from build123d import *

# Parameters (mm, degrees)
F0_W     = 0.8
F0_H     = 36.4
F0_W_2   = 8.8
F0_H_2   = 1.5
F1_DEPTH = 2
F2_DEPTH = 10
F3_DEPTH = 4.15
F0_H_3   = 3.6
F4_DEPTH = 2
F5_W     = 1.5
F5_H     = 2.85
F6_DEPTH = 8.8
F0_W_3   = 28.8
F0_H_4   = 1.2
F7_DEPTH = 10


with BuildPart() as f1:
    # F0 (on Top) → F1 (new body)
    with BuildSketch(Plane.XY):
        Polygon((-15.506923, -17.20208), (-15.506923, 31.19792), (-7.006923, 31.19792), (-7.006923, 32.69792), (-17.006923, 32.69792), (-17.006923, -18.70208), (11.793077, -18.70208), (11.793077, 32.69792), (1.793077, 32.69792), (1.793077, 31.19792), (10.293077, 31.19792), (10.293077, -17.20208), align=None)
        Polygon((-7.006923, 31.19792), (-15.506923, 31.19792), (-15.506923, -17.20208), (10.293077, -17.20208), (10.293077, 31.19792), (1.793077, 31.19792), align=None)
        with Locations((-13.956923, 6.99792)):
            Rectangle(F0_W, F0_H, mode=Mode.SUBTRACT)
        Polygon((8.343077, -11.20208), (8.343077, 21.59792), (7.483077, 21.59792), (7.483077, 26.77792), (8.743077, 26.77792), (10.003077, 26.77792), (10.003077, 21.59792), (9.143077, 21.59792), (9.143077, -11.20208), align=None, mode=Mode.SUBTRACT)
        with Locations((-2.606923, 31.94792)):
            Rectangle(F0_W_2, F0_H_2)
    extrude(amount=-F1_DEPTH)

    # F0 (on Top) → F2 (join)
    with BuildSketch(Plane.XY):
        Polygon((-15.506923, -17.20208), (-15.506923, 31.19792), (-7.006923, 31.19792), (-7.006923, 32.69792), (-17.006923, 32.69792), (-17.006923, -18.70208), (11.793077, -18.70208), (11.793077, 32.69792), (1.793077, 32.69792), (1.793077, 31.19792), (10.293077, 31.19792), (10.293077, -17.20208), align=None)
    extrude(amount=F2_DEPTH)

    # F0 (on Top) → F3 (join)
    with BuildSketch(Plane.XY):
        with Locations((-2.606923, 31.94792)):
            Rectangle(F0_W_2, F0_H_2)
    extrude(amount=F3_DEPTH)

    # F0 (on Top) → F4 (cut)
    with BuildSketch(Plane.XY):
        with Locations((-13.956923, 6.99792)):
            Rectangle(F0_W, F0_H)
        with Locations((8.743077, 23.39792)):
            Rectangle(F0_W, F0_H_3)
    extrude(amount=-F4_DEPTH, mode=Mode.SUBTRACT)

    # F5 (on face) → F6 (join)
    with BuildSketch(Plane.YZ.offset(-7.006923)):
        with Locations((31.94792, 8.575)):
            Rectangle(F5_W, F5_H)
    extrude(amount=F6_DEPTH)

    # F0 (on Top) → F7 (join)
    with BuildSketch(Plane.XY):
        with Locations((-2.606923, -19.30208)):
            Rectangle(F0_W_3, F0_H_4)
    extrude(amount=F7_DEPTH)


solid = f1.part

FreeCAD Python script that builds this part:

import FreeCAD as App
import Part
import Sketcher

doc = App.newDocument("Part")
body = doc.addObject("PartDesign::Body", "Body")

# Sketch on XY plane
sketch1 = body.newObject("Sketcher::SketchObject", "Sketch")
sketch1.AttachmentSupport = (doc.getObject("XY_Plane"), [""])
sketch1.MapMode = "FlatFace"
sketch1.addGeometry([
    Part.LineSegment(App.Vector(-17, 32.7, 0), App.Vector(-17, -18.7, 0)),  # 0
    Part.LineSegment(App.Vector(-17, -18.7, 0), App.Vector(11.8, -18.7, 0)),  # 1
    Part.LineSegment(App.Vector(11.8, -18.7, 0), App.Vector(11.8, 32.7, 0)),  # 2
    Part.LineSegment(App.Vector(11.8, 32.7, 0), App.Vector(-17, 32.7, 0)),  # 3
    Part.LineSegment(App.Vector(-13.6, -11.2, 0), App.Vector(-14.4, -11.2, 0)),  # 4
    Part.LineSegment(App.Vector(-14.4, -11.2, 0), App.Vector(-14.4, 25.2, 0)),  # 5
    Part.LineSegment(App.Vector(-14.4, 25.2, 0), App.Vector(-13.6, 25.2, 0)),  # 6
    Part.LineSegment(App.Vector(-13.6, 25.2, 0), App.Vector(-13.6, -11.2, 0)),  # 7
    Part.LineSegment(App.Vector(9.1, -11.2, 0), App.Vector(8.3, -11.2, 0)),  # 8
    Part.LineSegment(App.Vector(8.3, -11.2, 0), App.Vector(8.3, 21.6, 0)),  # 9
    Part.LineSegment(App.Vector(8.3, 21.6, 0), App.Vector(7.5, 21.6, 0)),  # 10
    Part.LineSegment(App.Vector(7.5, 21.6, 0), App.Vector(7.5, 26.8, 0)),  # 11
    Part.LineSegment(App.Vector(7.5, 26.8, 0), App.Vector(10, 26.8, 0)),  # 12
    Part.LineSegment(App.Vector(10, 26.8, 0), App.Vector(10, 21.6, 0)),  # 13
    Part.LineSegment(App.Vector(10, 21.6, 0), App.Vector(9.1, 21.6, 0)),  # 14
    Part.LineSegment(App.Vector(9.1, 21.6, 0), App.Vector(9.1, -11.2, 0)),  # 15
], False)
sketch1.addConstraint([
    Sketcher.Constraint("Coincident", 0, 2, 1, 1),
    Sketcher.Constraint("Coincident", 1, 2, 2, 1),
    Sketcher.Constraint("Coincident", 2, 2, 3, 1),
    Sketcher.Constraint("Coincident", 3, 2, 0, 1),
    Sketcher.Constraint("Coincident", 4, 2, 5, 1),
    Sketcher.Constraint("Coincident", 5, 2, 6, 1),
    Sketcher.Constraint("Coincident", 6, 2, 7, 1),
    Sketcher.Constraint("Coincident", 7, 2, 4, 1),
    Sketcher.Constraint("Coincident", 8, 2, 9, 1),
    Sketcher.Constraint("Coincident", 9, 2, 10, 1),
    Sketcher.Constraint("Coincident", 10, 2, 11, 1),
    Sketcher.Constraint("Coincident", 11, 2, 12, 1),
    Sketcher.Constraint("Coincident", 12, 2, 13, 1),
    Sketcher.Constraint("Coincident", 13, 2, 14, 1),
    Sketcher.Constraint("Coincident", 14, 2, 15, 1),
    Sketcher.Constraint("Coincident", 15, 2, 8, 1),
    Sketcher.Constraint("Vertical", 0),
    Sketcher.Constraint("Horizontal", 1),
    Sketcher.Constraint("Vertical", 2),
    Sketcher.Constraint("Horizontal", 3),
    Sketcher.Constraint("Horizontal", 4),
    Sketcher.Constraint("Vertical", 5),
    Sketcher.Constraint("Horizontal", 6),
    Sketcher.Constraint("Vertical", 7),
    Sketcher.Constraint("Horizontal", 8),
    Sketcher.Constraint("Vertical", 9),
    Sketcher.Constraint("Horizontal", 10),
    Sketcher.Constraint("Vertical", 11),
    Sketcher.Constraint("Horizontal", 12),
    Sketcher.Constraint("Vertical", 13),
    Sketcher.Constraint("Horizontal", 14),
    Sketcher.Constraint("Vertical", 15),
    Sketcher.Constraint("Horizontal", 7, 2, 8, 2),
    Sketcher.Constraint("Horizontal", 10, 2, 13, 2),
    Sketcher.Constraint("Equal", 6, 8),
    Sketcher.Constraint("Equal", 10, 14),
    Sketcher.Constraint("DistanceX", 1, 1, 1, 2, 28.8),
    Sketcher.Constraint("DistanceX", 4, 2, 4, 1, 0.8),
    Sketcher.Constraint("DistanceY", 0, 2, 0, 1, 51.4),
    Sketcher.Constraint("DistanceY", 5, 1, 5, 2, 36.4),
    Sketcher.Constraint("DistanceY", 9, 1, 9, 2, 32.8),
    Sketcher.Constraint("DistanceX", 10, 2, 10, 1, 0.86),
    Sketcher.Constraint("DistanceY", 11, 1, 11, 2, 5.18),
    Sketcher.Constraint("DistanceY", 0, 2, 4, 2, 7.5),
    Sketcher.Constraint("DistanceX", 7, 2, 8, 2, 21.9),
    Sketcher.Constraint("DistanceX", 0, 2, 4, 2, 2.65),
    Sketcher.Constraint("DistanceY", 0, 2, -1, 1, 18.70208),
    Sketcher.Constraint("DistanceX", 0, 2, -1, 1, 17.006923),
])
pad1 = body.newObject("PartDesign::Pad", "Pad")
pad1.Profile = sketch1
pad1.Length = 2
pad1.Reversed = True

# Sketch on XY plane
sketch2 = body.newObject("Sketcher::SketchObject", "Sketch001")
sketch2.AttachmentSupport = (doc.getObject("XY_Plane"), [""])
sketch2.MapMode = "FlatFace"
sketch2.addGeometry([
    Part.LineSegment(App.Vector(-15.5, -17.2, 0), App.Vector(-15.5, 31.2, 0)),  # 0
    Part.LineSegment(App.Vector(-15.5, 31.2, 0), App.Vector(-7, 31.2, 0)),  # 1
    Part.LineSegment(App.Vector(-7, 31.2, 0), App.Vector(-7, 32.7, 0)),  # 2
    Part.LineSegment(App.Vector(-7, 32.7, 0), App.Vector(-17, 32.7, 0)),  # 3
    Part.LineSegment(App.Vector(-17, 32.7, 0), App.Vector(-17, -18.7, 0)),  # 4
    Part.LineSegment(App.Vector(-17, -18.7, 0), App.Vector(11.8, -18.7, 0)),  # 5
    Part.LineSegment(App.Vector(11.8, -18.7, 0), App.Vector(11.8, 32.7, 0)),  # 6
    Part.LineSegment(App.Vector(11.8, 32.7, 0), App.Vector(1.8, 32.7, 0)),  # 7
    Part.LineSegment(App.Vector(1.8, 32.7, 0), App.Vector(1.8, 31.2, 0)),  # 8
    Part.LineSegment(App.Vector(1.8, 31.2, 0), App.Vector(10.3, 31.2, 0)),  # 9
    Part.LineSegment(App.Vector(10.3, 31.2, 0), App.Vector(10.3, -17.2, 0)),  # 10
    Part.LineSegment(App.Vector(10.3, -17.2, 0), App.Vector(-15.5, -17.2, 0)),  # 11
], False)
sketch2.addConstraint([
    Sketcher.Constraint("Coincident", 0, 2, 1, 1),
    Sketcher.Constraint("Coincident", 1, 2, 2, 1),
    Sketcher.Constraint("Coincident", 2, 2, 3, 1),
    Sketcher.Constraint("Coincident", 3, 2, 4, 1),
    Sketcher.Constraint("Coincident", 4, 2, 5, 1),
    Sketcher.Constraint("Coincident", 5, 2, 6, 1),
    Sketcher.Constraint("Coincident", 6, 2, 7, 1),
    Sketcher.Constraint("Coincident", 7, 2, 8, 1),
    Sketcher.Constraint("Coincident", 8, 2, 9, 1),
    Sketcher.Constraint("Coincident", 9, 2, 10, 1),
    Sketcher.Constraint("Coincident", 10, 2, 11, 1),
    Sketcher.Constraint("Coincident", 11, 2, 0, 1),
    Sketcher.Constraint("Vertical", 0),
    Sketcher.Constraint("Horizontal", 1),
    Sketcher.Constraint("Vertical", 2),
    Sketcher.Constraint("Horizontal", 3),
    Sketcher.Constraint("Vertical", 4),
    Sketcher.Constraint("Horizontal", 5),
    Sketcher.Constraint("Vertical", 6),
    Sketcher.Constraint("Horizontal", 7),
    Sketcher.Constraint("Vertical", 8),
    Sketcher.Constraint("Horizontal", 9),
    Sketcher.Constraint("Vertical", 10),
    Sketcher.Constraint("Horizontal", 11),
    Sketcher.Constraint("Horizontal", 3, 2, 6, 2),
    Sketcher.Constraint("Horizontal", 1, 2, 8, 2),
    Sketcher.Constraint("Equal", 3, 7),
    Sketcher.Constraint("Equal", 1, 9),
    Sketcher.Constraint("DistanceX", 3, 2, 3, 1, 10.0),
    Sketcher.Constraint("DistanceX", 1, 1, 1, 2, 8.5),
    Sketcher.Constraint("DistanceX", 5, 1, 5, 2, 28.8),
    Sketcher.Constraint("DistanceY", 0, 1, 0, 2, 48.4),
    Sketcher.Constraint("DistanceY", 2, 1, 2, 2, 1.5),
    Sketcher.Constraint("DistanceY", 4, 2, 4, 1, 51.4),
    Sketcher.Constraint("DistanceY", -1, 1, 0, 2, 31.19792),
    Sketcher.Constraint("DistanceX", 0, 2, -1, 1, 15.506923),
])
pad2 = body.newObject("PartDesign::Pad", "Pad001")
pad2.Profile = sketch2
pad2.Length = 10

# Sketch on XY plane
sketch3 = body.newObject("Sketcher::SketchObject", "Sketch002")
sketch3.AttachmentSupport = (doc.getObject("XY_Plane"), [""])
sketch3.MapMode = "FlatFace"
sketch3.addGeometry([
    Part.LineSegment(App.Vector(-7, 32.7, 0), App.Vector(-7, 31.2, 0)),
    Part.LineSegment(App.Vector(-7, 31.2, 0), App.Vector(1.8, 31.2, 0)),
    Part.LineSegment(App.Vector(1.8, 31.2, 0), App.Vector(1.8, 32.7, 0)),
    Part.LineSegment(App.Vector(1.8, 32.7, 0), App.Vector(-7, 32.7, 0)),
], False)
sketch3.addConstraint([
    Sketcher.Constraint("Coincident", 0, 2, 1, 1),
    Sketcher.Constraint("Coincident", 1, 2, 2, 1),
    Sketcher.Constraint("Coincident", 2, 2, 3, 1),
    Sketcher.Constraint("Coincident", 3, 2, 0, 1),
    Sketcher.Constraint("Vertical", 0),
    Sketcher.Constraint("Horizontal", 1),
    Sketcher.Constraint("Vertical", 2),
    Sketcher.Constraint("Horizontal", 3),
    Sketcher.Constraint("DistanceX", 1, 1, 1, 2, 8.8),
    Sketcher.Constraint("DistanceY", 0, 2, 0, 1, 1.5),
    Sketcher.Constraint("DistanceY", -1, 1, 0, 2, 31.19792),
    Sketcher.Constraint("DistanceX", 0, 2, -1, 1, 7.006923),
])
pad3 = body.newObject("PartDesign::Pad", "Pad002")
pad3.Profile = sketch3
pad3.Length = 4.15

# Sketch on XY plane
sketch4 = body.newObject("Sketcher::SketchObject", "Sketch003")
sketch4.AttachmentSupport = (doc.getObject("XY_Plane"), [""])
sketch4.MapMode = "FlatFace"
sketch4.addGeometry([
    Part.LineSegment(App.Vector(-14.4, 25.2, 0), App.Vector(-14.4, -11.2, 0)),  # 0
    Part.LineSegment(App.Vector(-14.4, -11.2, 0), App.Vector(-13.6, -11.2, 0)),  # 1
    Part.LineSegment(App.Vector(-13.6, -11.2, 0), App.Vector(-13.6, 25.2, 0)),  # 2
    Part.LineSegment(App.Vector(-13.6, 25.2, 0), App.Vector(-14.4, 25.2, 0)),  # 3
    Part.LineSegment(App.Vector(8.3, 25.2, 0), App.Vector(8.3, 21.6, 0)),  # 4
    Part.LineSegment(App.Vector(8.3, 21.6, 0), App.Vector(9.1, 21.6, 0)),  # 5
    Part.LineSegment(App.Vector(9.1, 21.6, 0), App.Vector(9.1, 25.2, 0)),  # 6
    Part.LineSegment(App.Vector(9.1, 25.2, 0), App.Vector(8.3, 25.2, 0)),  # 7
], False)
sketch4.addConstraint([
    Sketcher.Constraint("Coincident", 0, 2, 1, 1),
    Sketcher.Constraint("Coincident", 1, 2, 2, 1),
    Sketcher.Constraint("Coincident", 2, 2, 3, 1),
    Sketcher.Constraint("Coincident", 3, 2, 0, 1),
    Sketcher.Constraint("Coincident", 4, 2, 5, 1),
    Sketcher.Constraint("Coincident", 5, 2, 6, 1),
    Sketcher.Constraint("Coincident", 6, 2, 7, 1),
    Sketcher.Constraint("Coincident", 7, 2, 4, 1),
    Sketcher.Constraint("Vertical", 0),
    Sketcher.Constraint("Horizontal", 1),
    Sketcher.Constraint("Vertical", 2),
    Sketcher.Constraint("Horizontal", 3),
    Sketcher.Constraint("Vertical", 4),
    Sketcher.Constraint("Horizontal", 5),
    Sketcher.Constraint("Vertical", 6),
    Sketcher.Constraint("Horizontal", 7),
    Sketcher.Constraint("Horizontal", 3, 2, 6, 2),
    Sketcher.Constraint("Equal", 3, 5),
    Sketcher.Constraint("DistanceX", 1, 1, 1, 2, 0.8),
    Sketcher.Constraint("DistanceY", 0, 2, 0, 1, 36.4),
    Sketcher.Constraint("DistanceY", 4, 2, 4, 1, 3.6),
    Sketcher.Constraint("DistanceX", 2, 2, 4, 2, 21.9),
    Sketcher.Constraint("DistanceY", 0, 2, -1, 1, 11.20208),
    Sketcher.Constraint("DistanceX", 0, 2, -1, 1, 14.356923),
])
pocket1 = body.newObject("PartDesign::Pocket", "Pocket")
pocket1.Profile = sketch4
pocket1.Length = 2

# Sketch on YZ plane
sketch5 = body.newObject("Sketcher::SketchObject", "Sketch004")
sketch5.AttachmentSupport = (doc.getObject("YZ_Plane"), [""])
sketch5.MapMode = "FlatFace"
sketch5.AttachmentOffset = App.Placement(App.Vector(0, 0, -7.006923), App.Rotation())
sketch5.addGeometry([
    Part.LineSegment(App.Vector(31.2, 10, 0), App.Vector(31.2, 7.2, 0)),
    Part.LineSegment(App.Vector(31.2, 7.2, 0), App.Vector(32.7, 7.2, 0)),
    Part.LineSegment(App.Vector(32.7, 7.2, 0), App.Vector(32.7, 10, 0)),
    Part.LineSegment(App.Vector(32.7, 10, 0), App.Vector(31.2, 10, 0)),
], False)
sketch5.addConstraint([
    Sketcher.Constraint("Coincident", 0, 2, 1, 1),
    Sketcher.Constraint("Coincident", 1, 2, 2, 1),
    Sketcher.Constraint("Coincident", 2, 2, 3, 1),
    Sketcher.Constraint("Coincident", 3, 2, 0, 1),
    Sketcher.Constraint("Vertical", 0),
    Sketcher.Constraint("Horizontal", 1),
    Sketcher.Constraint("Vertical", 2),
    Sketcher.Constraint("Horizontal", 3),
    Sketcher.Constraint("DistanceX", 1, 1, 1, 2, 1.5),
    Sketcher.Constraint("DistanceY", -1, 1, 2, 2, 10.0),
    Sketcher.Constraint("DistanceY", 0, 2, 0, 1, 2.85),
    Sketcher.Constraint("DistanceX", -1, 1, 0, 2, 31.19792),
])
pad4 = body.newObject("PartDesign::Pad", "Pad003")
pad4.Profile = sketch5
pad4.Length = 8.8

# Sketch on XY plane
sketch6 = body.newObject("Sketcher::SketchObject", "Sketch005")
sketch6.AttachmentSupport = (doc.getObject("XY_Plane"), [""])
sketch6.MapMode = "FlatFace"
sketch6.addGeometry([
    Part.LineSegment(App.Vector(-17, -18.7, 0), App.Vector(-17, -19.9, 0)),
    Part.LineSegment(App.Vector(-17, -19.9, 0), App.Vector(11.8, -19.9, 0)),
    Part.LineSegment(App.Vector(11.8, -19.9, 0), App.Vector(11.8, -18.7, 0)),
    Part.LineSegment(App.Vector(11.8, -18.7, 0), App.Vector(-17, -18.7, 0)),
], False)
sketch6.addConstraint([
    Sketcher.Constraint("Coincident", 0, 2, 1, 1),
    Sketcher.Constraint("Coincident", 1, 2, 2, 1),
    Sketcher.Constraint("Coincident", 2, 2, 3, 1),
    Sketcher.Constraint("Coincident", 3, 2, 0, 1),
    Sketcher.Constraint("Vertical", 0),
    Sketcher.Constraint("Horizontal", 1),
    Sketcher.Constraint("Vertical", 2),
    Sketcher.Constraint("Horizontal", 3),
    Sketcher.Constraint("DistanceX", 1, 1, 1, 2, 28.8),
    Sketcher.Constraint("DistanceY", 0, 2, 0, 1, 1.2),
    Sketcher.Constraint("DistanceY", 0, 2, -1, 1, 19.90208),
    Sketcher.Constraint("DistanceX", 0, 2, -1, 1, 17.006923),
])
pad5 = body.newObject("PartDesign::Pad", "Pad004")
pad5.Profile = sketch6
pad5.Length = 10

doc.recompute()
